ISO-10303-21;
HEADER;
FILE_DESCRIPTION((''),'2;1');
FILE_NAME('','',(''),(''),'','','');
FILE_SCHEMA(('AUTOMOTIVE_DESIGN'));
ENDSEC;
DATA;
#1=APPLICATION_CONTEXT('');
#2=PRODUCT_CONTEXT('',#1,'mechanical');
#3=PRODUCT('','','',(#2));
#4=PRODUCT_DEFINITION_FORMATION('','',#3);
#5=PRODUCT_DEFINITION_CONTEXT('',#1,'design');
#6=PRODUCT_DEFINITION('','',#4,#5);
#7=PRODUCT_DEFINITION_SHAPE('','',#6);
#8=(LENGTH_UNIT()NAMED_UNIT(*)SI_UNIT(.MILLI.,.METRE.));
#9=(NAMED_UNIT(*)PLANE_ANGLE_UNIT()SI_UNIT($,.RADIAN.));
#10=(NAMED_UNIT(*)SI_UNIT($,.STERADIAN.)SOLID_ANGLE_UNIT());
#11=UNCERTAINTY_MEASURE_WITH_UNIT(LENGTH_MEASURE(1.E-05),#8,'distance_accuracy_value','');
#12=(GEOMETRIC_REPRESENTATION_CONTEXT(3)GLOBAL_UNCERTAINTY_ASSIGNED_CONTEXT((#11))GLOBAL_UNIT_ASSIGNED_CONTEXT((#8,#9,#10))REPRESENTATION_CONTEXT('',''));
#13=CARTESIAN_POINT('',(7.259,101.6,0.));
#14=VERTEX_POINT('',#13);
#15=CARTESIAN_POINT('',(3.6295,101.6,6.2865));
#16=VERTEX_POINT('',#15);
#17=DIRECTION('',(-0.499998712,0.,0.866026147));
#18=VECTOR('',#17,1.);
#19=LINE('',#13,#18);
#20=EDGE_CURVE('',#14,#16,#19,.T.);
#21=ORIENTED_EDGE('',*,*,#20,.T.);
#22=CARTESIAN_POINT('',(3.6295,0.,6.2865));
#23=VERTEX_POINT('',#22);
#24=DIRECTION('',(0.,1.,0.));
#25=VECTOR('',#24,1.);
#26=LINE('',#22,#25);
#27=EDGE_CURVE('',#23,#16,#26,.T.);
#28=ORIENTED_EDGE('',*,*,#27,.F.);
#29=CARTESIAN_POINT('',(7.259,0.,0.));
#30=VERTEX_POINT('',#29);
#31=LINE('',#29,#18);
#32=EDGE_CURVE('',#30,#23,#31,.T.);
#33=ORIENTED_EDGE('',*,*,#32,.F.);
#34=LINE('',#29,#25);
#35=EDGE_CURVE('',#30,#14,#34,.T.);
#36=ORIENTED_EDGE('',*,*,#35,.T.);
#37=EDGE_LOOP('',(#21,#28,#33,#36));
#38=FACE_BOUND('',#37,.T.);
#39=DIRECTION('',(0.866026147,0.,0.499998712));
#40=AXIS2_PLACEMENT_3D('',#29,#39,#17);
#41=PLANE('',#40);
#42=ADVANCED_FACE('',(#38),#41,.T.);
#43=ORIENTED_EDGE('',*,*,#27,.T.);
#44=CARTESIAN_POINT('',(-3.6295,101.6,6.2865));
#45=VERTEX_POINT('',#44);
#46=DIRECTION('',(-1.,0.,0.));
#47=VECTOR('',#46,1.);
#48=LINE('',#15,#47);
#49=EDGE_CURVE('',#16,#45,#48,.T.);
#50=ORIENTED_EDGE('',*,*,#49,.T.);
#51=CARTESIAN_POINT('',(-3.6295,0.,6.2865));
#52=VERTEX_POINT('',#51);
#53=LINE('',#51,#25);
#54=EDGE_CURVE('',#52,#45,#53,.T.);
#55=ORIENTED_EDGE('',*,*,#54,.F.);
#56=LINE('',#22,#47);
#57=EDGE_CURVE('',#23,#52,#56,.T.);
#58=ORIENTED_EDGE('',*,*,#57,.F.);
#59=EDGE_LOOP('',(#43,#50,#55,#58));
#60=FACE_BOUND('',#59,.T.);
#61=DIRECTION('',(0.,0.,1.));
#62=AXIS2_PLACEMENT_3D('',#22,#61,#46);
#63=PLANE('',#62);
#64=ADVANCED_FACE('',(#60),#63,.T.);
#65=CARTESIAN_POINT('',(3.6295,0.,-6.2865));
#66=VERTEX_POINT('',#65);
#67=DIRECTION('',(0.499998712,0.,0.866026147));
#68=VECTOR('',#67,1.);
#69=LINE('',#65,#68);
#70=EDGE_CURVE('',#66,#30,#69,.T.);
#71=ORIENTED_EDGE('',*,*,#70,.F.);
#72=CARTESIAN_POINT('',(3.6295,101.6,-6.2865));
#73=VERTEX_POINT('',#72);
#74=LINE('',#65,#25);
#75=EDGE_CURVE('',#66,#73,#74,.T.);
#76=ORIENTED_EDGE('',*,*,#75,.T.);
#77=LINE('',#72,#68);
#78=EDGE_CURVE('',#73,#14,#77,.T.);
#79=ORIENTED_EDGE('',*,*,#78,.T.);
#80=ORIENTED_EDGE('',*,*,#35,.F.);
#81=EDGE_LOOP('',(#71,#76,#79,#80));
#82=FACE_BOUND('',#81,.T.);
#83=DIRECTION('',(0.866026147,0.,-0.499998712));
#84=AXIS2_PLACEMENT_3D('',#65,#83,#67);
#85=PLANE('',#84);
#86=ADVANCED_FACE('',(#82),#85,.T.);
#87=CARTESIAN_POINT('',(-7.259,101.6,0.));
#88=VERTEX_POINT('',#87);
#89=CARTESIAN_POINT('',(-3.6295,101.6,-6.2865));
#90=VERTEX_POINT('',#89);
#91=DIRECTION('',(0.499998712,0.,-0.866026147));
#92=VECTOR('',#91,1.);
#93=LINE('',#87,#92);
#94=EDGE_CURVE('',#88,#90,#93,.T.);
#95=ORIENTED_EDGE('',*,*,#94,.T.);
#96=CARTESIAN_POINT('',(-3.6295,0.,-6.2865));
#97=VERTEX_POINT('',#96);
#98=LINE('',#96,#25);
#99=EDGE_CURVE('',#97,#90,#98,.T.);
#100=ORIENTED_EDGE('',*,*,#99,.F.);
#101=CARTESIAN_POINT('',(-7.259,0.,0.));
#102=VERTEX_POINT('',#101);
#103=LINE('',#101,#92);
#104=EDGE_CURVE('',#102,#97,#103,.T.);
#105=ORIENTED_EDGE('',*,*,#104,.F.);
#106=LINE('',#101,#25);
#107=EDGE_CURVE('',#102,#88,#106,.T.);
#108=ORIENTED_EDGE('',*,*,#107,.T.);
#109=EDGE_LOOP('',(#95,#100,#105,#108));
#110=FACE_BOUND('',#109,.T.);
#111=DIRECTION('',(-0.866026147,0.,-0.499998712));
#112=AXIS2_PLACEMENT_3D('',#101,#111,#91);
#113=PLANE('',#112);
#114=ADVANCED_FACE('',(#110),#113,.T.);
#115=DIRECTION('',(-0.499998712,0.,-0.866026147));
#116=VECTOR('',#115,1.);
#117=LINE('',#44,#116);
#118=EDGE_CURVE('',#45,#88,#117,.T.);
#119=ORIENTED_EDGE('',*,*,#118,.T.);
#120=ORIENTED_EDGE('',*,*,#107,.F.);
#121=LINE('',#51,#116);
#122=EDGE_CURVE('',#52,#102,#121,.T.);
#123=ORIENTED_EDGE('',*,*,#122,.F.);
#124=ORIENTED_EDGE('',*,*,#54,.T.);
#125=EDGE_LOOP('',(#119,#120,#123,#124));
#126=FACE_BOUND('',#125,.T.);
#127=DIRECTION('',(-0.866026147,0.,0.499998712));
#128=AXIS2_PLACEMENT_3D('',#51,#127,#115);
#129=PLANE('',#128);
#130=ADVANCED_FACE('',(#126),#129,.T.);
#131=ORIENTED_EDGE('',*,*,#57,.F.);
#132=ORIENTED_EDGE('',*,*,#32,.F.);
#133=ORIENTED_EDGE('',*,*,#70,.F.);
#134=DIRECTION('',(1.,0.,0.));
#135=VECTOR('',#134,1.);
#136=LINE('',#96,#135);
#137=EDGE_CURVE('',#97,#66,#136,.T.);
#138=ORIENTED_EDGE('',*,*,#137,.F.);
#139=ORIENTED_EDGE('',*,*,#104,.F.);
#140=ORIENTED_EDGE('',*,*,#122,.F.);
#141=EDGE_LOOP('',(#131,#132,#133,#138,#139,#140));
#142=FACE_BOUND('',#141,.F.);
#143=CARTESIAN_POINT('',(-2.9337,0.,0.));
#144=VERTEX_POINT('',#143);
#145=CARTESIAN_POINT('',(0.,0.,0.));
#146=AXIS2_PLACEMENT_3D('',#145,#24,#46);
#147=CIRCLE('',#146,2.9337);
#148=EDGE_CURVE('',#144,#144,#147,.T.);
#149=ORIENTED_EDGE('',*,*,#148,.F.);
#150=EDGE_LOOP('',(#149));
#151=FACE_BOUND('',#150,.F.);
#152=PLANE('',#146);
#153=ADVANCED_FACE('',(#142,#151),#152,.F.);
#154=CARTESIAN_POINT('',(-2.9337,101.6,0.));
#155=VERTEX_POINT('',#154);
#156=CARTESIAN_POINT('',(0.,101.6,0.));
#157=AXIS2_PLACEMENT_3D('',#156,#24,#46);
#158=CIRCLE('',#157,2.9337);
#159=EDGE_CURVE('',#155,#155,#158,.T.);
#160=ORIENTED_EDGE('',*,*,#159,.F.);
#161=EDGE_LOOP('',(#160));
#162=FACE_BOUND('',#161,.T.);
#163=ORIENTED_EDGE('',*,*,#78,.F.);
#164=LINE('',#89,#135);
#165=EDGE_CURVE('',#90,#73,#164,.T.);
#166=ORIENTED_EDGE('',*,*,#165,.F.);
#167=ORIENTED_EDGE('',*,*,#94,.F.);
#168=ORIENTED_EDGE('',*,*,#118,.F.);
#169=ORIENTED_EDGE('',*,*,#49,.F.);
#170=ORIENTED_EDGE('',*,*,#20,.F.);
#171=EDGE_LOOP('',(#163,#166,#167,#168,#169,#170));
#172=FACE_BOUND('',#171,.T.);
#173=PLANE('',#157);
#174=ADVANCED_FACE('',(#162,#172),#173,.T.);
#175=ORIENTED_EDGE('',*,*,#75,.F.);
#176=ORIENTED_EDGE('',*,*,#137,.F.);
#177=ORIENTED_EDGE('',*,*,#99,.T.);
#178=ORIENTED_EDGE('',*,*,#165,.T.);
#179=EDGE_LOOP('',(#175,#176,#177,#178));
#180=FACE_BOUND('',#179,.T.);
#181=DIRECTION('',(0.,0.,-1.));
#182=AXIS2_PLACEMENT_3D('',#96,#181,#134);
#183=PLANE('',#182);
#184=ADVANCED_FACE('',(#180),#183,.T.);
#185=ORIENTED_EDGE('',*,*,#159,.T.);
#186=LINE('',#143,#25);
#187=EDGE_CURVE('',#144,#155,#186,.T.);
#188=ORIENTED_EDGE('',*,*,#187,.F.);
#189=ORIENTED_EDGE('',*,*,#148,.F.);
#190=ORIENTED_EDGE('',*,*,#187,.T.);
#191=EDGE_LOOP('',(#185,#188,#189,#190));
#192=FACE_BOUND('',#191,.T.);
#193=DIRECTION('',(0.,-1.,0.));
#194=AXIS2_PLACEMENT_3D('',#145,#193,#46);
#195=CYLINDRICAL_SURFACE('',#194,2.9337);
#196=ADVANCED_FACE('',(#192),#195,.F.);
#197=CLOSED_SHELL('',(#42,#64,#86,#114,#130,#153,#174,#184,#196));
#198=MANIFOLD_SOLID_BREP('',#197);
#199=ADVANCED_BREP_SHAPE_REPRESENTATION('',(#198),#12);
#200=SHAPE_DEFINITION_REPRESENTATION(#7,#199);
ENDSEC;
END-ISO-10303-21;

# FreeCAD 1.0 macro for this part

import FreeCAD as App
import Part
import Sketcher
from FreeCAD import Vector
Q = App.Units.Quantity


def add_polygon(sketch, points):
    """Adds a closed chain of lines whose ends are joined by coincident constraints."""
    first, n = sketch.GeometryCount, len(points)
    for a, b in zip(points, points[1:] + points[:1]):
        sketch.addGeometry(Part.LineSegment(App.Vector(*a, 0), App.Vector(*b, 0)), False)
    for i in range(n):
        sketch.addConstraint(Sketcher.Constraint("Coincident", first + i, 2, first + (i + 1) % n, 1))

doc = App.newDocument("Part")
body = doc.addObject("PartDesign::Body", "Body")

# Sketch on XZ plane
sketch1 = doc.addObject("Sketcher::SketchObject", "Sketch")
body.addObject(sketch1)
sketch1.AttachmentSupport = (doc.XZ_Plane, [""])
sketch1.MapMode = "FlatFace"
add_polygon(sketch1, [(7.3, 0), (3.6, -6.3), (-3.6, -6.3), (-7.3, 0), (-3.6, 6.3), (3.6, 6.3)])  # lines 0-5
sketch1.addGeometry(Part.Circle(Vector(0, 0, 0), Vector(0, 0, 1), 2.9), False)  # 6
sketch1.addConstraint(Sketcher.Constraint("Horizontal", 1))
sketch1.addConstraint(Sketcher.Constraint("Horizontal", 4))
sketch1.addConstraint(Sketcher.Constraint("Coincident", 6, 3, -1, 1))
sketch1.addConstraint(Sketcher.Constraint("Symmetric", 0, 2, 3, 2, -1, 1))
sketch1.addConstraint(Sketcher.Constraint("Symmetric", 2, 2, 5, 2, -1, 1))
sketch1.addConstraint(Sketcher.Constraint("PointOnObject", 2, 2, -1))
sketch1.addConstraint(Sketcher.Constraint("Parallel", 2, 5))
sketch1.addConstraint(Sketcher.Constraint("Vertical", 1, 2, 3, 2))
sketch1.addConstraint(Sketcher.Constraint("Diameter", 6, Q("0.231 in")))
sketch1.addConstraint(Sketcher.Constraint("Angle", 0, Q("-120 deg")))
sketch1.addConstraint(Sketcher.Constraint("DistanceY", 0, 2, -1, 1, Q("0.2475 in")))
sketch1.addConstraint(Sketcher.Constraint("DistanceX", 1, 2, 1, 1, Q("7.259 mm")))
pad1 = doc.addObject("PartDesign::Pad", "Pad")
body.addObject(pad1)
pad1.Profile = sketch1
pad1.Length = Q("4 in")
pad1.Reversed = True

doc.recompute()
